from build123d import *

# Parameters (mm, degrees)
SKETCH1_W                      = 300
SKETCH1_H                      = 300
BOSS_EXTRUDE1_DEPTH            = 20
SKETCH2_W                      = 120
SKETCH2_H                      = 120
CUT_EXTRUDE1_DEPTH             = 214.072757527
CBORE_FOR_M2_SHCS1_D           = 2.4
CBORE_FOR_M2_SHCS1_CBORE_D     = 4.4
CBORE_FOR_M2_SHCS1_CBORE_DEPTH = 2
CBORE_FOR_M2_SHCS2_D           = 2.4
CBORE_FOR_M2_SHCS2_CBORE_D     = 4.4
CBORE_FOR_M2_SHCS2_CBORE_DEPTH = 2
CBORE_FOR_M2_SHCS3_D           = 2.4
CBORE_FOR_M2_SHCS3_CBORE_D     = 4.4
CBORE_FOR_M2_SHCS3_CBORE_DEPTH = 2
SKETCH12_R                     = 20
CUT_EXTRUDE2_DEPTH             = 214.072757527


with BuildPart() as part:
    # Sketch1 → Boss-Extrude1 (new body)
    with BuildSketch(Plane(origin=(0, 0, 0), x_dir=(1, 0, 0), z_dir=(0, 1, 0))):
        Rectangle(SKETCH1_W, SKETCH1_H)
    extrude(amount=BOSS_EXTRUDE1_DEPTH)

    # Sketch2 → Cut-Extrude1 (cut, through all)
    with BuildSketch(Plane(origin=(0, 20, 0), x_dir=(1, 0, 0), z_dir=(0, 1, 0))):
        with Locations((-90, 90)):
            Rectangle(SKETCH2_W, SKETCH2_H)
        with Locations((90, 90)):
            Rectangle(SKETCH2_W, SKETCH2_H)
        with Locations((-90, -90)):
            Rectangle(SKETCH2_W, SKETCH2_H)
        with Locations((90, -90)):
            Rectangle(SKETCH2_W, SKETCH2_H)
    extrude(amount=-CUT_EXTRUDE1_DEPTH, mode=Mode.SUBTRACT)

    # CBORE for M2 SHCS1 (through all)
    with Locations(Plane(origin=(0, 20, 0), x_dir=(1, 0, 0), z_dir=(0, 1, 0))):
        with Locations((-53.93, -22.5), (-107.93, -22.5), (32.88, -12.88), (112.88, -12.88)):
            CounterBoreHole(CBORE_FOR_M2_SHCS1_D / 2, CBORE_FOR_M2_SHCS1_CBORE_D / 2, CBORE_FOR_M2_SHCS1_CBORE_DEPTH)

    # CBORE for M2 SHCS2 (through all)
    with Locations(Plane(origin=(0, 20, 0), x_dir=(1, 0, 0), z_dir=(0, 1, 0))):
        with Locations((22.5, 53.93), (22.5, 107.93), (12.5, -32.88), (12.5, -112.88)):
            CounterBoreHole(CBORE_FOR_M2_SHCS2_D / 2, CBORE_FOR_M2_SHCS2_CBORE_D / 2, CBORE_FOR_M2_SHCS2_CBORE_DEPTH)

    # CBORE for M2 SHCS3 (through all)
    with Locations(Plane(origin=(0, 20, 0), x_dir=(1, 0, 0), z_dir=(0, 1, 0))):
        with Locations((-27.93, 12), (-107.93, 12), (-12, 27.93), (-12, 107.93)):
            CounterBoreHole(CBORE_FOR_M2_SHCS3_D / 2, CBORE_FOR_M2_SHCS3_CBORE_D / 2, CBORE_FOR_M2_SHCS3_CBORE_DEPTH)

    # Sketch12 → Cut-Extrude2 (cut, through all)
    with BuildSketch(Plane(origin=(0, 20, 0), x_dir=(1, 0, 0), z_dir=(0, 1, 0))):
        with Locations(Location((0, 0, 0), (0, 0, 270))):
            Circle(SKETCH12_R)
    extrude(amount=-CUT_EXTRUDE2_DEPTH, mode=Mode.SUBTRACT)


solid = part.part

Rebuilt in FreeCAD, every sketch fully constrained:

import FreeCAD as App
import Part
import Sketcher

doc = App.newDocument("Part")
params = doc.addObject("Spreadsheet::Sheet", "Params")
for row, (alias, value) in enumerate([
    ("sketch1_width", "300 mm"),
    ("pad1_length", "20 mm"),
    ("sketch2_width", "120 mm"),
    ("sketch3_diameter", "2.4 mm"),
    ("hole_diameter", "2.4 mm"),
    ("hole_cbore_diameter", "4.4 mm"),
    ("hole_cbore_depth", "2 mm"),
    ("sketch4_diameter", "2.4 mm"),
    ("hole2_diameter", "2.4 mm"),
    ("hole2_cbore_diameter", "4.4 mm"),
    ("hole2_cbore_depth", "2 mm"),
    ("sketch5_diameter", "2.4 mm"),
    ("hole3_diameter", "2.4 mm"),
    ("hole3_cbore_diameter", "4.4 mm"),
    ("hole3_cbore_depth", "2 mm"),
    ("sketch6_diameter", "40 mm"),
], start=1):
    params.set(f"A{row}", alias)
    params.set(f"B{row}", "=" + value)
    params.setAlias(f"B{row}", alias)

body = doc.addObject("PartDesign::Body", "Body")

# Sketch on XZ plane
sketch1 = body.newObject("Sketcher::SketchObject", "Sketch")
sketch1.AttachmentSupport = (doc.getObject("XZ_Plane"), [""])
sketch1.MapMode = "FlatFace"
sketch1.addGeometry(Part.LineSegment(App.Vector(-150, -150, 0), App.Vector(-150, 150, 0)), False)
sketch1.addGeometry(Part.LineSegment(App.Vector(-150, 150, 0), App.Vector(150, 150, 0)), False)
sketch1.addGeometry(Part.LineSegment(App.Vector(150, 150, 0), App.Vector(150, -150, 0)), False)
sketch1.addGeometry(Part.LineSegment(App.Vector(150, -150, 0), App.Vector(-150, -150, 0)), False)
sketch1.addConstraint(Sketcher.Constraint("Coincident", 0, 2, 1, 1))
sketch1.addConstraint(Sketcher.Constraint("Coincident", 1, 2, 2, 1))
sketch1.addConstraint(Sketcher.Constraint("Coincident", 2, 2, 3, 1))
sketch1.addConstraint(Sketcher.Constraint("Coincident", 3, 2, 0, 1))
sketch1.addConstraint(Sketcher.Constraint("Vertical", 0))
sketch1.addConstraint(Sketcher.Constraint("Horizontal", 1))
sketch1.addConstraint(Sketcher.Constraint("Vertical", 2))
sketch1.addConstraint(Sketcher.Constraint("Horizontal", 3))
sketch1.addConstraint(Sketcher.Constraint("Symmetric", 0, 2, 2, 2, -1, 1))
sketch1.addConstraint(Sketcher.Constraint("Equal", 3, 0))
sketch1.addConstraint(Sketcher.Constraint("DistanceX", 1, 1, 1, 2, 300.0))
sketch1.setExpression("Constraints[10]", "Params.sketch1_width")
pad1 = body.newObject("PartDesign::Pad", "Pad")
pad1.Profile = sketch1
pad1.setExpression("Length", "Params.pad1_length")
pad1.Reversed = True

# Sketch on XZ plane
sketch2 = body.newObject("Sketcher::SketchObject", "Sketch001")
sketch2.AttachmentSupport = (doc.getObject("XZ_Plane"), [""])
sketch2.MapMode = "FlatFace"
sketch2.AttachmentOffset = App.Placement(App.Vector(0, 0, -20), App.Rotation())
sketch2.addGeometry(Part.LineSegment(App.Vector(-150, -150, 0), App.Vector(-150, -30, 0)), False)
sketch2.addGeometry(Part.LineSegment(App.Vector(-150, -30, 0), App.Vector(-30, -30, 0)), False)
sketch2.addGeometry(Part.LineSegment(App.Vector(-30, -30, 0), App.Vector(-30, -150, 0)), False)
sketch2.addGeometry(Part.LineSegment(App.Vector(-30, -150, 0), App.Vector(-150, -150, 0)), False)
sketch2.addGeometry(Part.LineSegment(App.Vector(30, -150, 0), App.Vector(30, -30, 0)), False)
sketch2.addGeometry(Part.LineSegment(App.Vector(30, -30, 0), App.Vector(150, -30, 0)), False)
sketch2.addGeometry(Part.LineSegment(App.Vector(150, -30, 0), App.Vector(150, -150, 0)), False)
sketch2.addGeometry(Part.LineSegment(App.Vector(150, -150, 0), App.Vector(30, -150, 0)), False)
sketch2.addGeometry(Part.LineSegment(App.Vector(-150, 30, 0), App.Vector(-150, 150, 0)), False)
sketch2.addGeometry(Part.LineSegment(App.Vector(-150, 150, 0), App.Vector(-30, 150, 0)), False)
sketch2.addGeometry(Part.LineSegment(App.Vector(-30, 150, 0), App.Vector(-30, 30, 0)), False)
sketch2.addGeometry(Part.LineSegment(App.Vector(-30, 30, 0), App.Vector(-150, 30, 0)), False)
sketch2.addGeometry(Part.LineSegment(App.Vector(30, 30, 0), App.Vector(30, 150, 0)), False)
sketch2.addGeometry(Part.LineSegment(App.Vector(30, 150, 0), App.Vector(150, 150, 0)), False)
sketch2.addGeometry(Part.LineSegment(App.Vector(150, 150, 0), App.Vector(150, 30, 0)), False)
sketch2.addGeometry(Part.LineSegment(App.Vector(150, 30, 0), App.Vector(30, 30, 0)), False)
sketch2.addConstraint(Sketcher.Constraint("Coincident", 0, 2, 1, 1))
sketch2.addConstraint(Sketcher.Constraint("Coincident", 1, 2, 2, 1))
sketch2.addConstraint(Sketcher.Constraint("Coincident", 2, 2, 3, 1))
sketch2.addConstraint(Sketcher.Constraint("Coincident", 3, 2, 0, 1))
sketch2.addConstraint(Sketcher.Constraint("Coincident", 4, 2, 5, 1))
sketch2.addConstraint(Sketcher.Constraint("Coincident", 5, 2, 6, 1))
sketch2.addConstraint(Sketcher.Constraint("Coincident", 6, 2, 7, 1))
sketch2.addConstraint(Sketcher.Constraint("Coincident", 7, 2, 4, 1))
sketch2.addConstraint(Sketcher.Constraint("Coincident", 8, 2, 9, 1))
sketch2.addConstraint(Sketcher.Constraint("Coincident", 9, 2, 10, 1))
sketch2.addConstraint(Sketcher.Constraint("Coincident", 10, 2, 11, 1))
sketch2.addConstraint(Sketcher.Constraint("Coincident", 11, 2, 8, 1))
sketch2.addConstraint(Sketcher.Constraint("Coincident", 12, 2, 13, 1))
sketch2.addConstraint(Sketcher.Constraint("Coincident", 13, 2, 14, 1))
sketch2.addConstraint(Sketcher.Constraint("Coincident", 14, 2, 15, 1))
sketch2.addConstraint(Sketcher.Constraint("Coincident", 15, 2, 12, 1))
sketch2.addConstraint(Sketcher.Constraint("Vertical", 0))
sketch2.addConstraint(Sketcher.Constraint("Horizontal", 1))
sketch2.addConstraint(Sketcher.Constraint("Vertical", 2))
sketch2.addConstraint(Sketcher.Constraint("Horizontal", 3))
sketch2.addConstraint(Sketcher.Constraint("Vertical", 4))
sketch2.addConstraint(Sketcher.Constraint("Horizontal", 5))
sketch2.addConstraint(Sketcher.Constraint("Vertical", 6))
sketch2.addConstraint(Sketcher.Constraint("Horizontal", 7))
sketch2.addConstraint(Sketcher.Constraint("Vertical", 8))
sketch2.addConstraint(Sketcher.Constraint("Horizontal", 9))
sketch2.addConstraint(Sketcher.Constraint("Vertical", 10))
sketch2.addConstraint(Sketcher.Constraint("Horizontal", 11))
sketch2.addConstraint(Sketcher.Constraint("Vertical", 12))
sketch2.addConstraint(Sketcher.Constraint("Horizontal", 13))
sketch2.addConstraint(Sketcher.Constraint("Vertical", 14))
sketch2.addConstraint(Sketcher.Constraint("Horizontal", 15))
sketch2.addConstraint(Sketcher.Constraint("Symmetric", 6, 2, 8, 2, -1, 1))
sketch2.addConstraint(Sketcher.Constraint("Symmetric", 4, 2, 10, 2, -1, 1))
sketch2.addConstraint(Sketcher.Constraint("Symmetric", 2, 2, 12, 2, -1, 1))
sketch2.addConstraint(Sketcher.Constraint("Symmetric", 0, 2, 14, 2, -1, 1))
sketch2.addConstraint(Sketcher.Constraint("Symmetric", 1, 2, 4, 2, -2))
sketch2.addConstraint(Sketcher.Constraint("Symmetric", 3, 2, 6, 2, -2))
sketch2.addConstraint(Sketcher.Constraint("Equal", 15, 0))
sketch2.addConstraint(Sketcher.Constraint("DistanceX", 1, 1, 1, 2, 120.0))
sketch2.addConstraint(Sketcher.Constraint("DistanceX", 0, 2, -1, 1, 150.0))
sketch2.addConstraint(Sketcher.Constraint("DistanceY", 0, 2, -1, 1, 30.0))
sketch2.setExpression("Constraints[39]", "Params.sketch2_width")
pocket1 = body.newObject("PartDesign::Pocket", "Pocket")
pocket1.Profile = sketch2
pocket1.Type = "ThroughAll"
pocket1.Reversed = True

# Sketch on XZ plane
sketch3 = body.newObject("Sketcher::SketchObject", "Sketch002")
sketch3.AttachmentSupport = (doc.getObject("XZ_Plane"), [""])
sketch3.MapMode = "FlatFace"
sketch3.AttachmentOffset = App.Placement(App.Vector(0, 0, -20), App.Rotation())
sketch3.addGeometry(Part.Circle(App.Vector(-53.9, 22.5, 0), App.Vector(0, 0, 1), 1.2), False)
sketch3.addGeometry(Part.Circle(App.Vector(-107.9, 22.5, 0), App.Vector(0, 0, 1), 1.2), False)
sketch3.addGeometry(Part.Circle(App.Vector(32.9, 12.9, 0), App.Vector(0, 0, 1), 1.2), False)
sketch3.addGeometry(Part.Circle(App.Vector(112.9, 12.9, 0), App.Vector(0, 0, 1), 1.2), False)
sketch3.addConstraint(Sketcher.Constraint("Equal", 0, 1))
sketch3.addConstraint(Sketcher.Constraint("Equal", 1, 2))
sketch3.addConstraint(Sketcher.Constraint("Equal", 2, 3))
sketch3.addConstraint(Sketcher.Constraint("Horizontal", 0, 3, 1, 3))
sketch3.addConstraint(Sketcher.Constraint("Horizontal", 2, 3, 3, 3))
sketch3.addConstraint(Sketcher.Constraint("Diameter", 0, 2.4))
sketch3.addConstraint(Sketcher.Constraint("DistanceX", 1, 3, 0, 3, 54.0))
sketch3.addConstraint(Sketcher.Constraint("DistanceX", 2, 3, 3, 3, 80.0))
sketch3.addConstraint(Sketcher.Constraint("DistanceY", -1, 1, 0, 3, 22.5))
sketch3.addConstraint(Sketcher.Constraint("DistanceX", 0, 3, -1, 1, 53.93))
sketch3.addConstraint(Sketcher.Constraint("DistanceX", -1, 1, 2, 3, 32.88))
sketch3.addConstraint(Sketcher.Constraint("DistanceY", -1, 1, 2, 3, 12.88))
sketch3.setExpression("Constraints[5]", "Params.sketch3_diameter")
doc.recompute()
hole = body.newObject("PartDesign::Hole", "Hole")
hole.Profile = sketch3
hole.ThreadType = "None"
hole.setExpression("Diameter", "Params.hole_diameter")
hole.DepthType = "ThroughAll"
hole.HoleCutType = "Counterbore"
hole.setExpression("HoleCutDiameter", "Params.hole_cbore_diameter")
hole.setExpression("HoleCutDepth", "Params.hole_cbore_depth")
hole.Reversed = True

# Sketch on XZ plane
sketch4 = body.newObject("Sketcher::SketchObject", "Sketch003")
sketch4.AttachmentSupport = (doc.getObject("XZ_Plane"), [""])
sketch4.MapMode = "FlatFace"
sketch4.AttachmentOffset = App.Placement(App.Vector(0, 0, -20), App.Rotation())
sketch4.addGeometry(Part.Circle(App.Vector(22.5, -53.9, 0), App.Vector(0, 0, 1), 1.2), False)
sketch4.addGeometry(Part.Circle(App.Vector(22.5, -107.9, 0), App.Vector(0, 0, 1), 1.2), False)
sketch4.addGeometry(Part.Circle(App.Vector(12.5, 32.9, 0), App.Vector(0, 0, 1), 1.2), False)
sketch4.addGeometry(Part.Circle(App.Vector(12.5, 112.9, 0), App.Vector(0, 0, 1), 1.2), False)
sketch4.addConstraint(Sketcher.Constraint("Equal", 0, 1))
sketch4.addConstraint(Sketcher.Constraint("Equal", 1, 2))
sketch4.addConstraint(Sketcher.Constraint("Equal", 2, 3))
sketch4.addConstraint(Sketcher.Constraint("Vertical", 0, 3, 1, 3))
sketch4.addConstraint(Sketcher.Constraint("Vertical", 2, 3, 3, 3))
sketch4.addConstraint(Sketcher.Constraint("Diameter", 0, 2.4))
sketch4.addConstraint(Sketcher.Constraint("DistanceY", 1, 3, 0, 3, 54.0))
sketch4.addConstraint(Sketcher.Constraint("DistanceX", 2, 3, 0, 3, 10.0))
sketch4.addConstraint(Sketcher.Constraint("DistanceY", 2, 3, 3, 3, 80.0))
sketch4.addConstraint(Sketcher.Constraint("DistanceX", -1, 1, 0, 3, 22.5))
sketch4.addConstraint(Sketcher.Constraint("DistanceY", 0, 3, -1, 1, 53.93))
sketch4.addConstraint(Sketcher.Constraint("DistanceY", -1, 1, 2, 3, 32.88))
sketch4.setExpression("Constraints[5]", "Params.sketch4_diameter")
doc.recompute()
hole2 = body.newObject("PartDesign::Hole", "Hole001")
hole2.Profile = sketch4
hole2.ThreadType = "None"
hole2.setExpression("Diameter", "Params.hole2_diameter")
hole2.DepthType = "ThroughAll"
hole2.HoleCutType = "Counterbore"
hole2.setExpression("HoleCutDiameter", "Params.hole2_cbore_diameter")
hole2.setExpression("HoleCutDepth", "Params.hole2_cbore_depth")
hole2.Reversed = True

# Sketch on XZ plane
sketch5 = body.newObject("Sketcher::SketchObject", "Sketch004")
sketch5.AttachmentSupport = (doc.getObject("XZ_Plane"), [""])
sketch5.MapMode = "FlatFace"
sketch5.AttachmentOffset = App.Placement(App.Vector(0, 0, -20), App.Rotation())
sketch5.addGeometry(Part.Circle(App.Vector(-27.9, -12, 0), App.Vector(0, 0, 1), 1.2), False)
sketch5.addGeometry(Part.Circle(App.Vector(-107.9, -12, 0), App.Vector(0, 0, 1), 1.2), False)
sketch5.addGeometry(Part.Circle(App.Vector(-12, -27.9, 0), App.Vector(0, 0, 1), 1.2), False)
sketch5.addGeometry(Part.Circle(App.Vector(-12, -107.9, 0), App.Vector(0, 0, 1), 1.2), False)
sketch5.addConstraint(Sketcher.Constraint("Equal", 0, 1))
sketch5.addConstraint(Sketcher.Constraint("Equal", 1, 2))
sketch5.addConstraint(Sketcher.Constraint("Equal", 2, 3))
sketch5.addConstraint(Sketcher.Constraint("Horizontal", 0, 3, 1, 3))
sketch5.addConstraint(Sketcher.Constraint("Vertical", 2, 3, 3, 3))
sketch5.addConstraint(Sketcher.Constraint("Diameter", 0, 2.4))
sketch5.addConstraint(Sketcher.Constraint("DistanceY", 0, 3, -1, 1, 12.0))
sketch5.addConstraint(Sketcher.Constraint("DistanceX", 2, 3, -1, 1, 12.0))
sketch5.addConstraint(Sketcher.Constraint("DistanceX", 1, 3, 0, 3, 80.0))
sketch5.addConstraint(Sketcher.Constraint("DistanceY", 3, 3, 2, 3, 80.0))
sketch5.addConstraint(Sketcher.Constraint("DistanceX", 0, 3, -1, 1, 27.93))
sketch5.addConstraint(Sketcher.Constraint("DistanceY", 2, 3, -1, 1, 27.93))
sketch5.setExpression("Constraints[5]", "Params.sketch5_diameter")
doc.recompute()
hole3 = body.newObject("PartDesign::Hole", "Hole002")
hole3.Profile = sketch5
hole3.ThreadType = "None"
hole3.setExpression("Diameter", "Params.hole3_diameter")
hole3.DepthType = "ThroughAll"
hole3.HoleCutType = "Counterbore"
hole3.setExpression("HoleCutDiameter", "Params.hole3_cbore_diameter")
hole3.setExpression("HoleCutDepth", "Params.hole3_cbore_depth")
hole3.Reversed = True

# Sketch on XZ plane
sketch6 = body.newObject("Sketcher::SketchObject", "Sketch005")
sketch6.AttachmentSupport = (doc.getObject("XZ_Plane"), [""])
sketch6.MapMode = "FlatFace"
sketch6.AttachmentOffset = App.Placement(App.Vector(0, 0, -20), App.Rotation())
sketch6.addGeometry(Part.Circle(App.Vector(0, 0, 0), App.Vector(0, 0, 1), 20), False)
sketch6.addConstraint(Sketcher.Constraint("Coincident", 0, 3, -1, 1))
sketch6.addConstraint(Sketcher.Constraint("Diameter", 0, 40.0))
sketch6.setExpression("Constraints[1]", "Params.sketch6_diameter")
pocket2 = body.newObject("PartDesign::Pocket", "Pocket001")
pocket2.Profile = sketch6
pocket2.Type = "ThroughAll"
pocket2.Reversed = True

doc.recompute()
